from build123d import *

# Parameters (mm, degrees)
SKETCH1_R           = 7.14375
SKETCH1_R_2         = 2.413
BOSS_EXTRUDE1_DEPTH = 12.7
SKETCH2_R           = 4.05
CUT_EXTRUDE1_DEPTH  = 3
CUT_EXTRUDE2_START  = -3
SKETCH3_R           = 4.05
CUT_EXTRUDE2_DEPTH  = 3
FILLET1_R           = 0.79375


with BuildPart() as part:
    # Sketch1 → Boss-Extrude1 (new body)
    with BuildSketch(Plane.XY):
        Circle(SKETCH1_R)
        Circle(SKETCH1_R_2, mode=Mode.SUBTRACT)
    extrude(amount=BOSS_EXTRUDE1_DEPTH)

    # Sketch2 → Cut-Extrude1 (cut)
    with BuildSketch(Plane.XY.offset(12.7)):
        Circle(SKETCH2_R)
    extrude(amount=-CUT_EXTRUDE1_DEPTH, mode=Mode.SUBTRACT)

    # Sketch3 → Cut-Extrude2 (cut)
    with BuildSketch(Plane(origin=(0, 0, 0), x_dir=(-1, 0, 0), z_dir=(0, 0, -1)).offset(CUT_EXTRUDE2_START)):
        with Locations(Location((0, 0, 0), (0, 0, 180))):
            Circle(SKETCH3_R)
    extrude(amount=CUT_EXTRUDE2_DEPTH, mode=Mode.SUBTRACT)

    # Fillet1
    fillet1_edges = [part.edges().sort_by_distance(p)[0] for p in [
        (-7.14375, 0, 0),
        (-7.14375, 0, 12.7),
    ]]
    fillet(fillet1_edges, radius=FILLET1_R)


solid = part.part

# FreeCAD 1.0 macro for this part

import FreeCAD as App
import Part
import Sketcher

V = App.Vector
Q = App.Units.Quantity


def edges_at(feature, points):
    """Names of the edges that pass closest to the given points."""
    edges = feature.Shape.Edges
    near = lambda p: min(range(len(edges)), key=lambda i: edges[i].distToShape(Part.Vertex(*p))[0])
    return sorted({f"Edge{near(p) + 1}" for p in points})

doc = App.newDocument("Part")
body = doc.addObject("PartDesign::Body", "Body")

# Sketch on XY plane
sketch1 = doc.addObject("Sketcher::SketchObject", "Sketch")
body.addObject(sketch1)
sketch1.AttachmentSupport = (doc.XY_Plane, [""])
sketch1.MapMode = "FlatFace"
sketch1.addGeometry(Part.Circle(V(0, 0, 0), V(0, 0, 1), 7.1), False)
sketch1.addGeometry(Part.Circle(V(0, 0, 0), V(0, 0, 1), 2.4), False)
sketch1.addConstraint(Sketcher.Constraint("Coincident", 0, 3, -1, 1))
sketch1.addConstraint(Sketcher.Constraint("Coincident", 1, 3, -1, 1))
sketch1.addConstraint(Sketcher.Constraint("Diameter", 1, Q("0.19 in")))
sketch1.addConstraint(Sketcher.Constraint("Diameter", 0, Q("0.5625 in")))
pad1 = doc.addObject("PartDesign::Pad", "Pad")
body.addObject(pad1)
pad1.Profile = sketch1
pad1.Length = Q("0.5 in")

# Sketch on XY plane
sketch2 = doc.addObject("Sketcher::SketchObject", "Sketch001")
body.addObject(sketch2)
sketch2.AttachmentSupport = (doc.XY_Plane, [""])
sketch2.MapMode = "FlatFace"
sketch2.AttachmentOffset = App.Placement(V(0, 0, 0.5 * 25.4), App.Rotation())
sketch2.addGeometry(Part.Circle(V(0, 0, 0), V(0, 0, 1), 4), False)
sketch2.addConstraint(Sketcher.Constraint("Coincident", 0, 3, -1, 1))
sketch2.addConstraint(Sketcher.Constraint("Diameter", 0, Q("8.1 mm")))
pocket1 = doc.addObject("PartDesign::Pocket", "Pocket")
body.addObject(pocket1)
pocket1.Profile = sketch2
pocket1.Length = 3

# Sketch on XY plane
sketch3 = doc.addObject("Sketcher::SketchObject", "Sketch002")
body.addObject(sketch3)
sketch3.AttachmentSupport = (doc.XY_Plane, [""])
sketch3.MapMode = "FlatFace"
sketch3.AttachmentOffset = App.Placement(V(0, 0, 3), App.Rotation())
sketch3.addGeometry(Part.Circle(V(0, 0, 0), V(0, 0, 1), 4), False)
sketch3.addConstraint(Sketcher.Constraint("Coincident", 0, 3, -1, 1))
sketch3.addConstraint(Sketcher.Constraint("Diameter", 0, Q("8.1 mm")))
pocket2 = doc.addObject("PartDesign::Pocket", "Pocket001")
body.addObject(pocket2)
pocket2.Profile = sketch3
pocket2.Length = 3
doc.recompute()

fillet = doc.addObject("PartDesign::Fillet", "Fillet")
body.addObject(fillet)
fillet.Base = (pocket2, edges_at(pocket2, [(-7.144, 0, 0), (-7.144, 0, 12.7)]))
fillet.Radius = Q("0.03125 in")

doc.recompute()
